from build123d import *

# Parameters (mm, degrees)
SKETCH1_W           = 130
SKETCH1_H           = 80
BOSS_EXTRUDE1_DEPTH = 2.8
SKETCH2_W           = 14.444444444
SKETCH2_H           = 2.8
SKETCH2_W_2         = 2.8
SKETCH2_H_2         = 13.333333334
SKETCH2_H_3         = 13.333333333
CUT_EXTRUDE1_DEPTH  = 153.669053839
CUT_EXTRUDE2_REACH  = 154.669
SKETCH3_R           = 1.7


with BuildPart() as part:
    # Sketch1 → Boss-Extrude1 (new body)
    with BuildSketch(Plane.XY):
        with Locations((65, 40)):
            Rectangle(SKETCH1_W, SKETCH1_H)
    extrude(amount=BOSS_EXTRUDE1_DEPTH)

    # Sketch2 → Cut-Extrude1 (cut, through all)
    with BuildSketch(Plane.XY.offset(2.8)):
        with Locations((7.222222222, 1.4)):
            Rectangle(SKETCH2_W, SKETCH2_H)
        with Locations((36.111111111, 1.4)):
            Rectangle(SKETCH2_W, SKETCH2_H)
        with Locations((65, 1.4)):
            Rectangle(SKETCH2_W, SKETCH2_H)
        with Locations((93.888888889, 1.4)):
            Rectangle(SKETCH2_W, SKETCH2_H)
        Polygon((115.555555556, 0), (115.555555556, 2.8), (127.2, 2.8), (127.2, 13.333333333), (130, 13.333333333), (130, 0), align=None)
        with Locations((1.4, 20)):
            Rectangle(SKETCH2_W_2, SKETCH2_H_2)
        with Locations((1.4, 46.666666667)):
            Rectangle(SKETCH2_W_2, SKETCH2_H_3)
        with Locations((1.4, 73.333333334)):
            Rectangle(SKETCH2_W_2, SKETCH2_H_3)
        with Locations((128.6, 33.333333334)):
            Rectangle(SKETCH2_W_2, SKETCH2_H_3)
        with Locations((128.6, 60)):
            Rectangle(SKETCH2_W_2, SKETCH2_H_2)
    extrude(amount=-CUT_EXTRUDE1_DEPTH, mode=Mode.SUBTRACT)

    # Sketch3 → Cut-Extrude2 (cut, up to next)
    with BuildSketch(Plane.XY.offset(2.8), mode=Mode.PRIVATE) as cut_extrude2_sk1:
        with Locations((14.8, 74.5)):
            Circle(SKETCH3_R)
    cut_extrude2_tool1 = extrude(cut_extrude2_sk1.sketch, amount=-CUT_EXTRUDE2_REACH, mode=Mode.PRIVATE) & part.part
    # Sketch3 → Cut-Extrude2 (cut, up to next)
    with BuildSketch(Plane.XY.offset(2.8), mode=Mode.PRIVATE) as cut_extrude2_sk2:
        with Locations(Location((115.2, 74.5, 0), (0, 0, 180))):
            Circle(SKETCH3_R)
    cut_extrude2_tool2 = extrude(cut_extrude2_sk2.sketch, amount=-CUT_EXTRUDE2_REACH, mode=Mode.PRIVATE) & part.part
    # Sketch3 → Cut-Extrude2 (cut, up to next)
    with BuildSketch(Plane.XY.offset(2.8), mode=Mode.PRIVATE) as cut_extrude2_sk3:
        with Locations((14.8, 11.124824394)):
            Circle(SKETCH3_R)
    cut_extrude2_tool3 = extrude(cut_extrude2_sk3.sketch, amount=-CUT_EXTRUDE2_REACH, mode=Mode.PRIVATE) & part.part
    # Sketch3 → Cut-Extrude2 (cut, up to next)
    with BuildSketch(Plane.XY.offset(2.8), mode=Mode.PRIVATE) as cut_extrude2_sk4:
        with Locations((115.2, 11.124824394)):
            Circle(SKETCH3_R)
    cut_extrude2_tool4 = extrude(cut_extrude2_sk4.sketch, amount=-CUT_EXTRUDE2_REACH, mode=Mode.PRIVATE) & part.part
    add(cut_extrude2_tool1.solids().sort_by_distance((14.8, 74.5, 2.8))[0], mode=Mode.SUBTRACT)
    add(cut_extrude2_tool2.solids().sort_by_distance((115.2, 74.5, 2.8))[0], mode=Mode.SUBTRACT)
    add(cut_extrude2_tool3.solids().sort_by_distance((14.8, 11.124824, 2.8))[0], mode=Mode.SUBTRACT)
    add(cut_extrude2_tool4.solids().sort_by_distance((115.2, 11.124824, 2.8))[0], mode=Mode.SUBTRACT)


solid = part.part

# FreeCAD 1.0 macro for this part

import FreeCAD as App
import Part
import Sketcher
Q = App.Units.Quantity


def add_polygon(sketch, points):
    """Adds a closed chain of lines whose ends are joined by coincident constraints."""
    first, n = sketch.GeometryCount, len(points)
    for a, b in zip(points, points[1:] + points[:1]):
        sketch.addGeometry(Part.LineSegment(App.Vector(*a, 0), App.Vector(*b, 0)), False)
    for i in range(n):
        sketch.addConstraint(Sketcher.Constraint("Coincident", first + i, 2, first + (i + 1) % n, 1))

doc = App.newDocument("Part")
body = doc.addObject("PartDesign::Body", "Body")

# Sketch on XY plane
sketch1 = body.newObject("Sketcher::SketchObject", "Sketch")
sketch1.AttachmentSupport = (doc.getObject("XY_Plane"), [""])
sketch1.MapMode = "FlatFace"
add_polygon(sketch1, [(0, 80), (0, 0), (130, 0), (130, 80)])  # lines 0-3
sketch1.addConstraint([
    Sketcher.Constraint("Vertical", 0),
    Sketcher.Constraint("Horizontal", 1),
    Sketcher.Constraint("Vertical", 2),
    Sketcher.Constraint("Horizontal", 3),
    Sketcher.Constraint("Coincident", 0, 2, -1, 1),
    Sketcher.Constraint("DistanceX", 1, 1, 1, 2, Q("130 mm")),
    Sketcher.Constraint("DistanceY", 0, 2, 0, 1, Q("80 mm")),
])
pad1 = body.newObject("PartDesign::Pad", "Pad")
pad1.Profile = sketch1
pad1.Length = 2.8

# Sketch on XY plane
sketch2 = body.newObject("Sketcher::SketchObject", "Sketch001")
sketch2.AttachmentSupport = (doc.getObject("XY_Plane"), [""])
sketch2.MapMode = "FlatFace"
sketch2.AttachmentOffset = App.Placement(App.Vector(0, 0, 2.8), App.Rotation())
add_polygon(sketch2, [(0, 2.8), (0, 0), (14.444444, 0), (14.444444, 2.8)])  # lines 0-3
add_polygon(sketch2, [(28.888889, 2.8), (28.888889, 0), (43.333333, 0), (43.333333, 2.8)])  # lines 4-7
add_polygon(sketch2, [(57.777778, 2.8), (57.777778, 0), (72.222222, 0), (72.222222, 2.8)])  # lines 8-11
add_polygon(sketch2, [(86.666667, 2.8), (86.666667, 0), (101.111111, 0), (101.111111, 2.8)])  # lines 12-15
add_polygon(sketch2, [(115.555556, 2.8), (115.555556, 0), (130, 0), (130, 13.333333), (127.2, 13.333333), (127.2, 2.8)])  # lines 16-21
add_polygon(sketch2, [(0, 26.666667), (0, 13.333333), (2.8, 13.333333), (2.8, 26.666667)])  # lines 22-25
add_polygon(sketch2, [(0, 53.333333), (0, 40), (2.8, 40), (2.8, 53.333333)])  # lines 26-29
add_polygon(sketch2, [(0, 80), (0, 66.666667), (2.8, 66.666667), (2.8, 80)])  # lines 30-33
add_polygon(sketch2, [(127.2, 40), (127.2, 26.666667), (130, 26.666667), (130, 40)])  # lines 34-37
add_polygon(sketch2, [(127.2, 66.666667), (127.2, 53.333333), (130, 53.333333), (130, 66.666667)])  # lines 38-41
sketch2.addConstraint([
    Sketcher.Constraint("Vertical", 0),
    Sketcher.Constraint("Horizontal", 1),
    Sketcher.Constraint("Vertical", 2),
    Sketcher.Constraint("Horizontal", 3),
    Sketcher.Constraint("Vertical", 4),
    Sketcher.Constraint("Horizontal", 5),
    Sketcher.Constraint("Vertical", 6),
    Sketcher.Constraint("Horizontal", 7),
    Sketcher.Constraint("Vertical", 8),
    Sketcher.Constraint("Horizontal", 9),
    Sketcher.Constraint("Vertical", 10),
    Sketcher.Constraint("Horizontal", 11),
    Sketcher.Constraint("Vertical", 12),
    Sketcher.Constraint("Horizontal", 13),
    Sketcher.Constraint("Vertical", 14),
    Sketcher.Constraint("Horizontal", 15),
    Sketcher.Constraint("Vertical", 16),
    Sketcher.Constraint("Horizontal", 17),
    Sketcher.Constraint("Vertical", 18),
    Sketcher.Constraint("Horizontal", 19),
    Sketcher.Constraint("Vertical", 20),
    Sketcher.Constraint("Horizontal", 21),
    Sketcher.Constraint("Vertical", 22),
    Sketcher.Constraint("Horizontal", 23),
    Sketcher.Constraint("Vertical", 24),
    Sketcher.Constraint("Horizontal", 25),
    Sketcher.Constraint("Vertical", 26),
    Sketcher.Constraint("Horizontal", 27),
    Sketcher.Constraint("Vertical", 28),
    Sketcher.Constraint("Horizontal", 29),
    Sketcher.Constraint("Vertical", 30),
    Sketcher.Constraint("Horizontal", 31),
    Sketcher.Constraint("Vertical", 32),
    Sketcher.Constraint("Horizontal", 33),
    Sketcher.Constraint("Vertical", 34),
    Sketcher.Constraint("Horizontal", 35),
    Sketcher.Constraint("Vertical", 36),
    Sketcher.Constraint("Horizontal", 37),
    Sketcher.Constraint("Vertical", 38),
    Sketcher.Constraint("Horizontal", 39),
    Sketcher.Constraint("Vertical", 40),
    Sketcher.Constraint("Horizontal", 41),
    Sketcher.Constraint("Coincident", 0, 2, -1, 1),
    Sketcher.Constraint("PointOnObject", 4, 2, -1),
    Sketcher.Constraint("PointOnObject", 8, 2, -1),
    Sketcher.Constraint("PointOnObject", 12, 2, -1),
    Sketcher.Constraint("PointOnObject", 16, 2, -1),
    Sketcher.Constraint("PointOnObject", 22, 2, -2),
    Sketcher.Constraint("PointOnObject", 26, 2, -2),
    Sketcher.Constraint("PointOnObject", 30, 2, -2),
    Sketcher.Constraint("Horizontal", 3, 2, 6, 2),
    Sketcher.Constraint("Horizontal", 7, 2, 10, 2),
    Sketcher.Constraint("Horizontal", 11, 2, 14, 2),
    Sketcher.Constraint("Horizontal", 15, 2, 20, 2),
    Sketcher.Constraint("Horizontal", 19, 2, 22, 2),
    Sketcher.Constraint("Horizontal", 25, 2, 34, 2),
    Sketcher.Constraint("Horizontal", 27, 2, 36, 2),
    Sketcher.Constraint("Horizontal", 29, 2, 38, 2),
    Sketcher.Constraint("Horizontal", 31, 2, 40, 2),
    Sketcher.Constraint("Vertical", 24, 2, 27, 2),
    Sketcher.Constraint("Vertical", 28, 2, 31, 2),
    Sketcher.Constraint("Vertical", 20, 2, 34, 2),
    Sketcher.Constraint("Vertical", 18, 2, 35, 2),
    Sketcher.Constraint("Vertical", 37, 2, 38, 2),
    Sketcher.Constraint("Vertical", 36, 2, 39, 2),
    Sketcher.Constraint("Equal", 3, 5),
    Sketcher.Constraint("Equal", 7, 9),
    Sketcher.Constraint("Equal", 11, 13),
    Sketcher.Constraint("Equal", 15, 17),
    Sketcher.Constraint("Equal", 19, 23),
    Sketcher.Constraint("Equal", 41, 0),
    Sketcher.Constraint("Equal", 18, 22),
    Sketcher.Constraint("Equal", 24, 26),
    Sketcher.Constraint("Equal", 28, 30),
    Sketcher.Constraint("Equal", 32, 34),
    Sketcher.Constraint("Equal", 36, 38),
    Sketcher.Constraint("DistanceX", 19, 2, 19, 1, Q("2.8 mm")),
    Sketcher.Constraint("DistanceX", -1, 1, 17, 2, Q("130 mm")),
    Sketcher.Constraint("DistanceY", -1, 1, 26, 2, Q("40 mm")),
    Sketcher.Constraint("DistanceX", 1, 1, 1, 2, Q("14.444444 mm")),
    Sketcher.Constraint("DistanceX", -1, 1, 4, 2, Q("28.888889 mm")),
    Sketcher.Constraint("DistanceX", -1, 1, 13, 2, Q("101.111111 mm")),
    Sketcher.Constraint("DistanceX", 4, 2, 8, 2, Q("28.888889 mm")),
])
pocket1 = body.newObject("PartDesign::Pocket", "Pocket")
pocket1.Profile = sketch2
pocket1.Type = "ThroughAll"

# Sketch on XY plane
sketch3 = body.newObject("Sketcher::SketchObject", "Sketch002")
sketch3.AttachmentSupport = (doc.getObject("XY_Plane"), [""])
sketch3.MapMode = "FlatFace"
sketch3.AttachmentOffset = App.Placement(App.Vector(0, 0, 2.8), App.Rotation())
sketch3.addGeometry(Part.Circle(App.Vector(14.8, 74.5, 0), App.Vector(0, 0, 1), 1.7), False)
sketch3.addConstraint([
    Sketcher.Constraint("Diameter", 0, Q("3.4 mm")),
    Sketcher.Constraint("DistanceX", -1, 1, 0, 3, Q("14.8 mm")),
    Sketcher.Constraint("DistanceY", -1, 1, 0, 3, Q("74.5 mm")),
])
pocket2 = body.newObject("PartDesign::Pocket", "Pocket001")
pocket2.Profile = sketch3
pocket2.Type = "UpToFirst"

# Sketch on XY plane
sketch4 = body.newObject("Sketcher::SketchObject", "Sketch003")
sketch4.AttachmentSupport = (doc.getObject("XY_Plane"), [""])
sketch4.MapMode = "FlatFace"
sketch4.AttachmentOffset = App.Placement(App.Vector(0, 0, 2.8), App.Rotation())
sketch4.addGeometry(Part.Circle(App.Vector(115.2, 74.5, 0), App.Vector(0, 0, 1), 1.7), False)
sketch4.addConstraint([
    Sketcher.Constraint("Diameter", 0, Q("3.4 mm")),
    Sketcher.Constraint("DistanceX", -1, 1, 0, 3, Q("115.2 mm")),
    Sketcher.Constraint("DistanceY", -1, 1, 0, 3, Q("74.5 mm")),
])
pocket3 = body.newObject("PartDesign::Pocket", "Pocket002")
pocket3.Profile = sketch4
pocket3.Type = "UpToFirst"

# Sketch on XY plane
sketch5 = body.newObject("Sketcher::SketchObject", "Sketch004")
sketch5.AttachmentSupport = (doc.getObject("XY_Plane"), [""])
sketch5.MapMode = "FlatFace"
sketch5.AttachmentOffset = App.Placement(App.Vector(0, 0, 2.8), App.Rotation())
sketch5.addGeometry(Part.Circle(App.Vector(14.8, 11.124824, 0), App.Vector(0, 0, 1), 1.7), False)
sketch5.addConstraint([
    Sketcher.Constraint("Diameter", 0, Q("3.4 mm")),
    Sketcher.Constraint("DistanceX", -1, 1, 0, 3, Q("14.8 mm")),
    Sketcher.Constraint("DistanceY", -1, 1, 0, 3, Q("11.124824 mm")),
])
pocket4 = body.newObject("PartDesign::Pocket", "Pocket003")
pocket4.Profile = sketch5
pocket4.Type = "UpToFirst"

# Sketch on XY plane
sketch6 = body.newObject("Sketcher::SketchObject", "Sketch005")
sketch6.AttachmentSupport = (doc.getObject("XY_Plane"), [""])
sketch6.MapMode = "FlatFace"
sketch6.AttachmentOffset = App.Placement(App.Vector(0, 0, 2.8), App.Rotation())
sketch6.addGeometry(Part.Circle(App.Vector(115.2, 11.124824, 0), App.Vector(0, 0, 1), 1.7), False)
sketch6.addConstraint([
    Sketcher.Constraint("Diameter", 0, Q("3.4 mm")),
    Sketcher.Constraint("DistanceX", -1, 1, 0, 3, Q("115.2 mm")),
    Sketcher.Constraint("DistanceY", -1, 1, 0, 3, Q("11.124824 mm")),
])
pocket5 = body.newObject("PartDesign::Pocket", "Pocket004")
pocket5.Profile = sketch6
pocket5.Type = "UpToFirst"

doc.recompute()
